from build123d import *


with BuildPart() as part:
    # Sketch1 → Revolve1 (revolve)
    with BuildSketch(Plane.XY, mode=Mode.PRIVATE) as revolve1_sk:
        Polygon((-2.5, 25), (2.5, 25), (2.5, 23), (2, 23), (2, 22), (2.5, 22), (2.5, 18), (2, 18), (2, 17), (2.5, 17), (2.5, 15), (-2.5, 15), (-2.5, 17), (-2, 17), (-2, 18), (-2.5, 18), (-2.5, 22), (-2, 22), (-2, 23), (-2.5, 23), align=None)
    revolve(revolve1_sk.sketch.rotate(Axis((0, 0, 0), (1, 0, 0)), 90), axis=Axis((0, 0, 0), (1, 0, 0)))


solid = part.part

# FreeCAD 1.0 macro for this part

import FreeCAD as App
import Part
import Sketcher
Q = App.Units.Quantity


def add_polygon(sketch, points):
    """Adds a closed chain of lines whose ends are joined by coincident constraints."""
    first, n = sketch.GeometryCount, len(points)
    for a, b in zip(points, points[1:] + points[:1]):
        sketch.addGeometry(Part.LineSegment(App.Vector(*a, 0), App.Vector(*b, 0)), False)
    for i in range(n):
        sketch.addConstraint(Sketcher.Constraint("Coincident", first + i, 2, first + (i + 1) % n, 1))

doc = App.newDocument("Part")
body = doc.addObject("PartDesign::Body", "Body")

# Sketch on XY plane
sketch1 = doc.addObject("Sketcher::SketchObject", "Sketch")
body.addObject(sketch1)
sketch1.AttachmentSupport = (doc.XY_Plane, [""])
sketch1.MapMode = "FlatFace"
add_polygon(sketch1, [(2.5, 25), (-2.5, 25), (-2.5, 23), (-2, 23), (-2, 22), (-2.5, 22), (-2.5, 18), (-2, 18), (-2, 17), (-2.5, 17), (-2.5, 15), (2.5, 15), (2.5, 17), (2, 17), (2, 18), (2.5, 18), (2.5, 22), (2, 22), (2, 23), (2.5, 23)])  # lines 0-19
sketch1.addConstraint([
    Sketcher.Constraint("Horizontal", 0),
    Sketcher.Constraint("Vertical", 1),
    Sketcher.Constraint("Horizontal", 2),
    Sketcher.Constraint("Vertical", 3),
    Sketcher.Constraint("Horizontal", 4),
    Sketcher.Constraint("Vertical", 5),
    Sketcher.Constraint("Horizontal", 6),
    Sketcher.Constraint("Vertical", 7),
    Sketcher.Constraint("Horizontal", 8),
    Sketcher.Constraint("Vertical", 9),
    Sketcher.Constraint("Horizontal", 10),
    Sketcher.Constraint("Vertical", 11),
    Sketcher.Constraint("Horizontal", 12),
    Sketcher.Constraint("Vertical", 13),
    Sketcher.Constraint("Horizontal", 14),
    Sketcher.Constraint("Vertical", 15),
    Sketcher.Constraint("Horizontal", 16),
    Sketcher.Constraint("Vertical", 17),
    Sketcher.Constraint("Horizontal", 18),
    Sketcher.Constraint("Vertical", 19),
    Sketcher.Constraint("Symmetric", 8, 2, 11, 2, -2),
    Sketcher.Constraint("Symmetric", 6, 2, 13, 2, -2),
    Sketcher.Constraint("Symmetric", 4, 2, 15, 2, -2),
    Sketcher.Constraint("Symmetric", 2, 2, 17, 2, -2),
    Sketcher.Constraint("Vertical", 1, 2, 4, 2),
    Sketcher.Constraint("Vertical", 3, 2, 6, 2),
    Sketcher.Constraint("Vertical", 5, 2, 8, 2),
    Sketcher.Constraint("Vertical", 15, 2, 18, 2),
    Sketcher.Constraint("Equal", 3, 7),
    Sketcher.Constraint("Equal", 1, 9),
    Sketcher.Constraint("DistanceX", 0, 2, 0, 1, Q("5 mm")),
    Sketcher.Constraint("DistanceY", 1, 2, 1, 1, Q("2 mm")),
    Sketcher.Constraint("DistanceY", 3, 2, 3, 1, Q("1 mm")),
    Sketcher.Constraint("DistanceY", 5, 2, 5, 1, Q("4 mm")),
    Sketcher.Constraint("DistanceX", 2, 1, 2, 2, Q("0.5 mm")),
    Sketcher.Constraint("DistanceY", -1, 1, 0, 2, Q("25 mm")),
])
revolution = doc.addObject("PartDesign::Revolution", "Revolution")
body.addObject(revolution)
revolution.Profile = sketch1
revolution.ReferenceAxis = (sketch1, ["H_Axis"])
revolution.Angle = 360

doc.recompute()
